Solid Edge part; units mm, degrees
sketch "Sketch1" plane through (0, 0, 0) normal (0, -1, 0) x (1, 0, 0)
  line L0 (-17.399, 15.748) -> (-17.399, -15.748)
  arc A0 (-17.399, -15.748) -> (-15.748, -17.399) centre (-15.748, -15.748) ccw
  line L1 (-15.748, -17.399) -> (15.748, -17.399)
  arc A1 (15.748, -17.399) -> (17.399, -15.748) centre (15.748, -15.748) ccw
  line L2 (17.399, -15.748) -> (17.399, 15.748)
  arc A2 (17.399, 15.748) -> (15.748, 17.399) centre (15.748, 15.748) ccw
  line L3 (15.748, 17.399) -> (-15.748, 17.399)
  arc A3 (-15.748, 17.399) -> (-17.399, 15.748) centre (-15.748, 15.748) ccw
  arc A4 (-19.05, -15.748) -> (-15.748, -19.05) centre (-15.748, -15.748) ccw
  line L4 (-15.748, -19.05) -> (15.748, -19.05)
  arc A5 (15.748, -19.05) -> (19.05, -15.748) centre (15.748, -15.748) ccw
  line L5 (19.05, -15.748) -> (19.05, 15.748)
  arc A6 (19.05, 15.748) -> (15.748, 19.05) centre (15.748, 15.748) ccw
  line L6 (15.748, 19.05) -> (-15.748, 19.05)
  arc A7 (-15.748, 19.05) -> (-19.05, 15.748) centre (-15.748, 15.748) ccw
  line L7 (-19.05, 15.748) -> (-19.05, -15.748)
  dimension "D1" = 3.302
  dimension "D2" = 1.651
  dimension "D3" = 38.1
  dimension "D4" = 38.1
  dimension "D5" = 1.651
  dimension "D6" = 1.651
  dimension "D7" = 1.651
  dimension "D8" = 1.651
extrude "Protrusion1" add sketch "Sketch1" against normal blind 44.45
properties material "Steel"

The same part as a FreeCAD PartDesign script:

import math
import FreeCAD as App
import Part
import Sketcher
from FreeCAD import Vector
Q = App.Units.Quantity

doc = App.newDocument("Part")
body = doc.addObject("PartDesign::Body", "Body")

# Sketch on XZ plane
sketch1 = body.newObject("Sketcher::SketchObject", "Sketch")
sketch1.AttachmentSupport = (doc.getObject("XZ_Plane"), [""])
sketch1.MapMode = "FlatFace"
sketch1.addGeometry(Part.LineSegment(Vector(-19.1, 15.7, 0), Vector(-19.1, -15.7, 0)), False)
sketch1.addGeometry(Part.ArcOfCircle(Part.Circle(Vector(-15.7, -15.7, 0), Vector(0, 0, 1), 3.3), math.radians(180), math.radians(270)), False)
sketch1.addGeometry(Part.LineSegment(Vector(-15.7, -19.1, 0), Vector(15.7, -19.1, 0)), False)
sketch1.addGeometry(Part.ArcOfCircle(Part.Circle(Vector(15.7, -15.7, 0), Vector(0, 0, 1), 3.3), math.radians(-90), math.radians(0)), False)
sketch1.addGeometry(Part.LineSegment(Vector(19.1, -15.7, 0), Vector(19.1, 15.7, 0)), False)
sketch1.addGeometry(Part.ArcOfCircle(Part.Circle(Vector(15.7, 15.7, 0), Vector(0, 0, 1), 3.3), math.radians(0), math.radians(90)), False)
sketch1.addGeometry(Part.LineSegment(Vector(15.7, 19.1, 0), Vector(-15.7, 19.1, 0)), False)
sketch1.addGeometry(Part.ArcOfCircle(Part.Circle(Vector(-15.7, 15.7, 0), Vector(0, 0, 1), 3.3), math.radians(90), math.radians(180)), False)
sketch1.addGeometry(Part.LineSegment(Vector(-17.4, -15.7, 0), Vector(-17.4, 15.7, 0)), False)
sketch1.addGeometry(Part.ArcOfCircle(Part.Circle(Vector(-15.7, 15.7, 0), Vector(0, 0, 1), 1.7), math.radians(90), math.radians(180)), False)
sketch1.addGeometry(Part.LineSegment(Vector(-15.7, 17.4, 0), Vector(15.7, 17.4, 0)), False)
sketch1.addGeometry(Part.ArcOfCircle(Part.Circle(Vector(15.7, 15.7, 0), Vector(0, 0, 1), 1.7), math.radians(0), math.radians(90)), False)
sketch1.addGeometry(Part.LineSegment(Vector(17.4, 15.7, 0), Vector(17.4, -15.7, 0)), False)
sketch1.addGeometry(Part.ArcOfCircle(Part.Circle(Vector(15.7, -15.7, 0), Vector(0, 0, 1), 1.7), math.radians(-90), math.radians(0)), False)
sketch1.addGeometry(Part.LineSegment(Vector(15.7, -17.4, 0), Vector(-15.7, -17.4, 0)), False)
sketch1.addGeometry(Part.ArcOfCircle(Part.Circle(Vector(-15.7, -15.7, 0), Vector(0, 0, 1), 1.7), math.radians(180), math.radians(270)), False)
sketch1.addConstraint(Sketcher.Constraint("Tangent", 0, 2, 1, 1))
sketch1.addConstraint(Sketcher.Constraint("Tangent", 1, 2, 2, 1))
sketch1.addConstraint(Sketcher.Constraint("Tangent", 2, 2, 3, 1))
sketch1.addConstraint(Sketcher.Constraint("Tangent", 3, 2, 4, 1))
sketch1.addConstraint(Sketcher.Constraint("Tangent", 4, 2, 5, 1))
sketch1.addConstraint(Sketcher.Constraint("Tangent", 5, 2, 6, 1))
sketch1.addConstraint(Sketcher.Constraint("Tangent", 6, 2, 7, 1))
sketch1.addConstraint(Sketcher.Constraint("Tangent", 7, 2, 0, 1))
sketch1.addConstraint(Sketcher.Constraint("Tangent", 8, 2, 9, 2))
sketch1.addConstraint(Sketcher.Constraint("Tangent", 9, 1, 10, 1))
sketch1.addConstraint(Sketcher.Constraint("Tangent", 10, 2, 11, 2))
sketch1.addConstraint(Sketcher.Constraint("Tangent", 11, 1, 12, 1))
sketch1.addConstraint(Sketcher.Constraint("Tangent", 12, 2, 13, 2))
sketch1.addConstraint(Sketcher.Constraint("Tangent", 13, 1, 14, 1))
sketch1.addConstraint(Sketcher.Constraint("Tangent", 14, 2, 15, 2))
sketch1.addConstraint(Sketcher.Constraint("Tangent", 15, 1, 8, 1))
sketch1.addConstraint(Sketcher.Constraint("Vertical", 0))
sketch1.addConstraint(Sketcher.Constraint("Horizontal", 2))
sketch1.addConstraint(Sketcher.Constraint("Vertical", 4))
sketch1.addConstraint(Sketcher.Constraint("Horizontal", 6))
sketch1.addConstraint(Sketcher.Constraint("Vertical", 8))
sketch1.addConstraint(Sketcher.Constraint("Horizontal", 10))
sketch1.addConstraint(Sketcher.Constraint("Vertical", 12))
sketch1.addConstraint(Sketcher.Constraint("Horizontal", 14))
sketch1.addConstraint(Sketcher.Constraint("Coincident", 9, 3, 7, 3))
sketch1.addConstraint(Sketcher.Constraint("Coincident", 11, 3, 5, 3))
sketch1.addConstraint(Sketcher.Constraint("Coincident", 13, 3, 3, 3))
sketch1.addConstraint(Sketcher.Constraint("Equal", 1, 3))
sketch1.addConstraint(Sketcher.Constraint("Equal", 3, 5))
sketch1.addConstraint(Sketcher.Constraint("Equal", 5, 7))
sketch1.addConstraint(Sketcher.Constraint("Equal", 13, 15))
sketch1.addConstraint(Sketcher.Constraint("Symmetric", 1, 3, 5, 3, -1, 1))
sketch1.addConstraint(Sketcher.Constraint("Equal", 14, 0))
sketch1.addConstraint(Sketcher.Constraint("Radius", 1, Q("0.13 in")))
sketch1.addConstraint(Sketcher.Constraint("Radius", 9, Q("0.065 in")))
sketch1.addConstraint(Sketcher.Constraint("DistanceX", 2, 1, 2, 2, Q("1.24 in")))
pad1 = body.newObject("PartDesign::Pad", "Pad")
pad1.Profile = sketch1
pad1.Length = Q("1.75 in")
pad1.Reversed = True

doc.recompute()
